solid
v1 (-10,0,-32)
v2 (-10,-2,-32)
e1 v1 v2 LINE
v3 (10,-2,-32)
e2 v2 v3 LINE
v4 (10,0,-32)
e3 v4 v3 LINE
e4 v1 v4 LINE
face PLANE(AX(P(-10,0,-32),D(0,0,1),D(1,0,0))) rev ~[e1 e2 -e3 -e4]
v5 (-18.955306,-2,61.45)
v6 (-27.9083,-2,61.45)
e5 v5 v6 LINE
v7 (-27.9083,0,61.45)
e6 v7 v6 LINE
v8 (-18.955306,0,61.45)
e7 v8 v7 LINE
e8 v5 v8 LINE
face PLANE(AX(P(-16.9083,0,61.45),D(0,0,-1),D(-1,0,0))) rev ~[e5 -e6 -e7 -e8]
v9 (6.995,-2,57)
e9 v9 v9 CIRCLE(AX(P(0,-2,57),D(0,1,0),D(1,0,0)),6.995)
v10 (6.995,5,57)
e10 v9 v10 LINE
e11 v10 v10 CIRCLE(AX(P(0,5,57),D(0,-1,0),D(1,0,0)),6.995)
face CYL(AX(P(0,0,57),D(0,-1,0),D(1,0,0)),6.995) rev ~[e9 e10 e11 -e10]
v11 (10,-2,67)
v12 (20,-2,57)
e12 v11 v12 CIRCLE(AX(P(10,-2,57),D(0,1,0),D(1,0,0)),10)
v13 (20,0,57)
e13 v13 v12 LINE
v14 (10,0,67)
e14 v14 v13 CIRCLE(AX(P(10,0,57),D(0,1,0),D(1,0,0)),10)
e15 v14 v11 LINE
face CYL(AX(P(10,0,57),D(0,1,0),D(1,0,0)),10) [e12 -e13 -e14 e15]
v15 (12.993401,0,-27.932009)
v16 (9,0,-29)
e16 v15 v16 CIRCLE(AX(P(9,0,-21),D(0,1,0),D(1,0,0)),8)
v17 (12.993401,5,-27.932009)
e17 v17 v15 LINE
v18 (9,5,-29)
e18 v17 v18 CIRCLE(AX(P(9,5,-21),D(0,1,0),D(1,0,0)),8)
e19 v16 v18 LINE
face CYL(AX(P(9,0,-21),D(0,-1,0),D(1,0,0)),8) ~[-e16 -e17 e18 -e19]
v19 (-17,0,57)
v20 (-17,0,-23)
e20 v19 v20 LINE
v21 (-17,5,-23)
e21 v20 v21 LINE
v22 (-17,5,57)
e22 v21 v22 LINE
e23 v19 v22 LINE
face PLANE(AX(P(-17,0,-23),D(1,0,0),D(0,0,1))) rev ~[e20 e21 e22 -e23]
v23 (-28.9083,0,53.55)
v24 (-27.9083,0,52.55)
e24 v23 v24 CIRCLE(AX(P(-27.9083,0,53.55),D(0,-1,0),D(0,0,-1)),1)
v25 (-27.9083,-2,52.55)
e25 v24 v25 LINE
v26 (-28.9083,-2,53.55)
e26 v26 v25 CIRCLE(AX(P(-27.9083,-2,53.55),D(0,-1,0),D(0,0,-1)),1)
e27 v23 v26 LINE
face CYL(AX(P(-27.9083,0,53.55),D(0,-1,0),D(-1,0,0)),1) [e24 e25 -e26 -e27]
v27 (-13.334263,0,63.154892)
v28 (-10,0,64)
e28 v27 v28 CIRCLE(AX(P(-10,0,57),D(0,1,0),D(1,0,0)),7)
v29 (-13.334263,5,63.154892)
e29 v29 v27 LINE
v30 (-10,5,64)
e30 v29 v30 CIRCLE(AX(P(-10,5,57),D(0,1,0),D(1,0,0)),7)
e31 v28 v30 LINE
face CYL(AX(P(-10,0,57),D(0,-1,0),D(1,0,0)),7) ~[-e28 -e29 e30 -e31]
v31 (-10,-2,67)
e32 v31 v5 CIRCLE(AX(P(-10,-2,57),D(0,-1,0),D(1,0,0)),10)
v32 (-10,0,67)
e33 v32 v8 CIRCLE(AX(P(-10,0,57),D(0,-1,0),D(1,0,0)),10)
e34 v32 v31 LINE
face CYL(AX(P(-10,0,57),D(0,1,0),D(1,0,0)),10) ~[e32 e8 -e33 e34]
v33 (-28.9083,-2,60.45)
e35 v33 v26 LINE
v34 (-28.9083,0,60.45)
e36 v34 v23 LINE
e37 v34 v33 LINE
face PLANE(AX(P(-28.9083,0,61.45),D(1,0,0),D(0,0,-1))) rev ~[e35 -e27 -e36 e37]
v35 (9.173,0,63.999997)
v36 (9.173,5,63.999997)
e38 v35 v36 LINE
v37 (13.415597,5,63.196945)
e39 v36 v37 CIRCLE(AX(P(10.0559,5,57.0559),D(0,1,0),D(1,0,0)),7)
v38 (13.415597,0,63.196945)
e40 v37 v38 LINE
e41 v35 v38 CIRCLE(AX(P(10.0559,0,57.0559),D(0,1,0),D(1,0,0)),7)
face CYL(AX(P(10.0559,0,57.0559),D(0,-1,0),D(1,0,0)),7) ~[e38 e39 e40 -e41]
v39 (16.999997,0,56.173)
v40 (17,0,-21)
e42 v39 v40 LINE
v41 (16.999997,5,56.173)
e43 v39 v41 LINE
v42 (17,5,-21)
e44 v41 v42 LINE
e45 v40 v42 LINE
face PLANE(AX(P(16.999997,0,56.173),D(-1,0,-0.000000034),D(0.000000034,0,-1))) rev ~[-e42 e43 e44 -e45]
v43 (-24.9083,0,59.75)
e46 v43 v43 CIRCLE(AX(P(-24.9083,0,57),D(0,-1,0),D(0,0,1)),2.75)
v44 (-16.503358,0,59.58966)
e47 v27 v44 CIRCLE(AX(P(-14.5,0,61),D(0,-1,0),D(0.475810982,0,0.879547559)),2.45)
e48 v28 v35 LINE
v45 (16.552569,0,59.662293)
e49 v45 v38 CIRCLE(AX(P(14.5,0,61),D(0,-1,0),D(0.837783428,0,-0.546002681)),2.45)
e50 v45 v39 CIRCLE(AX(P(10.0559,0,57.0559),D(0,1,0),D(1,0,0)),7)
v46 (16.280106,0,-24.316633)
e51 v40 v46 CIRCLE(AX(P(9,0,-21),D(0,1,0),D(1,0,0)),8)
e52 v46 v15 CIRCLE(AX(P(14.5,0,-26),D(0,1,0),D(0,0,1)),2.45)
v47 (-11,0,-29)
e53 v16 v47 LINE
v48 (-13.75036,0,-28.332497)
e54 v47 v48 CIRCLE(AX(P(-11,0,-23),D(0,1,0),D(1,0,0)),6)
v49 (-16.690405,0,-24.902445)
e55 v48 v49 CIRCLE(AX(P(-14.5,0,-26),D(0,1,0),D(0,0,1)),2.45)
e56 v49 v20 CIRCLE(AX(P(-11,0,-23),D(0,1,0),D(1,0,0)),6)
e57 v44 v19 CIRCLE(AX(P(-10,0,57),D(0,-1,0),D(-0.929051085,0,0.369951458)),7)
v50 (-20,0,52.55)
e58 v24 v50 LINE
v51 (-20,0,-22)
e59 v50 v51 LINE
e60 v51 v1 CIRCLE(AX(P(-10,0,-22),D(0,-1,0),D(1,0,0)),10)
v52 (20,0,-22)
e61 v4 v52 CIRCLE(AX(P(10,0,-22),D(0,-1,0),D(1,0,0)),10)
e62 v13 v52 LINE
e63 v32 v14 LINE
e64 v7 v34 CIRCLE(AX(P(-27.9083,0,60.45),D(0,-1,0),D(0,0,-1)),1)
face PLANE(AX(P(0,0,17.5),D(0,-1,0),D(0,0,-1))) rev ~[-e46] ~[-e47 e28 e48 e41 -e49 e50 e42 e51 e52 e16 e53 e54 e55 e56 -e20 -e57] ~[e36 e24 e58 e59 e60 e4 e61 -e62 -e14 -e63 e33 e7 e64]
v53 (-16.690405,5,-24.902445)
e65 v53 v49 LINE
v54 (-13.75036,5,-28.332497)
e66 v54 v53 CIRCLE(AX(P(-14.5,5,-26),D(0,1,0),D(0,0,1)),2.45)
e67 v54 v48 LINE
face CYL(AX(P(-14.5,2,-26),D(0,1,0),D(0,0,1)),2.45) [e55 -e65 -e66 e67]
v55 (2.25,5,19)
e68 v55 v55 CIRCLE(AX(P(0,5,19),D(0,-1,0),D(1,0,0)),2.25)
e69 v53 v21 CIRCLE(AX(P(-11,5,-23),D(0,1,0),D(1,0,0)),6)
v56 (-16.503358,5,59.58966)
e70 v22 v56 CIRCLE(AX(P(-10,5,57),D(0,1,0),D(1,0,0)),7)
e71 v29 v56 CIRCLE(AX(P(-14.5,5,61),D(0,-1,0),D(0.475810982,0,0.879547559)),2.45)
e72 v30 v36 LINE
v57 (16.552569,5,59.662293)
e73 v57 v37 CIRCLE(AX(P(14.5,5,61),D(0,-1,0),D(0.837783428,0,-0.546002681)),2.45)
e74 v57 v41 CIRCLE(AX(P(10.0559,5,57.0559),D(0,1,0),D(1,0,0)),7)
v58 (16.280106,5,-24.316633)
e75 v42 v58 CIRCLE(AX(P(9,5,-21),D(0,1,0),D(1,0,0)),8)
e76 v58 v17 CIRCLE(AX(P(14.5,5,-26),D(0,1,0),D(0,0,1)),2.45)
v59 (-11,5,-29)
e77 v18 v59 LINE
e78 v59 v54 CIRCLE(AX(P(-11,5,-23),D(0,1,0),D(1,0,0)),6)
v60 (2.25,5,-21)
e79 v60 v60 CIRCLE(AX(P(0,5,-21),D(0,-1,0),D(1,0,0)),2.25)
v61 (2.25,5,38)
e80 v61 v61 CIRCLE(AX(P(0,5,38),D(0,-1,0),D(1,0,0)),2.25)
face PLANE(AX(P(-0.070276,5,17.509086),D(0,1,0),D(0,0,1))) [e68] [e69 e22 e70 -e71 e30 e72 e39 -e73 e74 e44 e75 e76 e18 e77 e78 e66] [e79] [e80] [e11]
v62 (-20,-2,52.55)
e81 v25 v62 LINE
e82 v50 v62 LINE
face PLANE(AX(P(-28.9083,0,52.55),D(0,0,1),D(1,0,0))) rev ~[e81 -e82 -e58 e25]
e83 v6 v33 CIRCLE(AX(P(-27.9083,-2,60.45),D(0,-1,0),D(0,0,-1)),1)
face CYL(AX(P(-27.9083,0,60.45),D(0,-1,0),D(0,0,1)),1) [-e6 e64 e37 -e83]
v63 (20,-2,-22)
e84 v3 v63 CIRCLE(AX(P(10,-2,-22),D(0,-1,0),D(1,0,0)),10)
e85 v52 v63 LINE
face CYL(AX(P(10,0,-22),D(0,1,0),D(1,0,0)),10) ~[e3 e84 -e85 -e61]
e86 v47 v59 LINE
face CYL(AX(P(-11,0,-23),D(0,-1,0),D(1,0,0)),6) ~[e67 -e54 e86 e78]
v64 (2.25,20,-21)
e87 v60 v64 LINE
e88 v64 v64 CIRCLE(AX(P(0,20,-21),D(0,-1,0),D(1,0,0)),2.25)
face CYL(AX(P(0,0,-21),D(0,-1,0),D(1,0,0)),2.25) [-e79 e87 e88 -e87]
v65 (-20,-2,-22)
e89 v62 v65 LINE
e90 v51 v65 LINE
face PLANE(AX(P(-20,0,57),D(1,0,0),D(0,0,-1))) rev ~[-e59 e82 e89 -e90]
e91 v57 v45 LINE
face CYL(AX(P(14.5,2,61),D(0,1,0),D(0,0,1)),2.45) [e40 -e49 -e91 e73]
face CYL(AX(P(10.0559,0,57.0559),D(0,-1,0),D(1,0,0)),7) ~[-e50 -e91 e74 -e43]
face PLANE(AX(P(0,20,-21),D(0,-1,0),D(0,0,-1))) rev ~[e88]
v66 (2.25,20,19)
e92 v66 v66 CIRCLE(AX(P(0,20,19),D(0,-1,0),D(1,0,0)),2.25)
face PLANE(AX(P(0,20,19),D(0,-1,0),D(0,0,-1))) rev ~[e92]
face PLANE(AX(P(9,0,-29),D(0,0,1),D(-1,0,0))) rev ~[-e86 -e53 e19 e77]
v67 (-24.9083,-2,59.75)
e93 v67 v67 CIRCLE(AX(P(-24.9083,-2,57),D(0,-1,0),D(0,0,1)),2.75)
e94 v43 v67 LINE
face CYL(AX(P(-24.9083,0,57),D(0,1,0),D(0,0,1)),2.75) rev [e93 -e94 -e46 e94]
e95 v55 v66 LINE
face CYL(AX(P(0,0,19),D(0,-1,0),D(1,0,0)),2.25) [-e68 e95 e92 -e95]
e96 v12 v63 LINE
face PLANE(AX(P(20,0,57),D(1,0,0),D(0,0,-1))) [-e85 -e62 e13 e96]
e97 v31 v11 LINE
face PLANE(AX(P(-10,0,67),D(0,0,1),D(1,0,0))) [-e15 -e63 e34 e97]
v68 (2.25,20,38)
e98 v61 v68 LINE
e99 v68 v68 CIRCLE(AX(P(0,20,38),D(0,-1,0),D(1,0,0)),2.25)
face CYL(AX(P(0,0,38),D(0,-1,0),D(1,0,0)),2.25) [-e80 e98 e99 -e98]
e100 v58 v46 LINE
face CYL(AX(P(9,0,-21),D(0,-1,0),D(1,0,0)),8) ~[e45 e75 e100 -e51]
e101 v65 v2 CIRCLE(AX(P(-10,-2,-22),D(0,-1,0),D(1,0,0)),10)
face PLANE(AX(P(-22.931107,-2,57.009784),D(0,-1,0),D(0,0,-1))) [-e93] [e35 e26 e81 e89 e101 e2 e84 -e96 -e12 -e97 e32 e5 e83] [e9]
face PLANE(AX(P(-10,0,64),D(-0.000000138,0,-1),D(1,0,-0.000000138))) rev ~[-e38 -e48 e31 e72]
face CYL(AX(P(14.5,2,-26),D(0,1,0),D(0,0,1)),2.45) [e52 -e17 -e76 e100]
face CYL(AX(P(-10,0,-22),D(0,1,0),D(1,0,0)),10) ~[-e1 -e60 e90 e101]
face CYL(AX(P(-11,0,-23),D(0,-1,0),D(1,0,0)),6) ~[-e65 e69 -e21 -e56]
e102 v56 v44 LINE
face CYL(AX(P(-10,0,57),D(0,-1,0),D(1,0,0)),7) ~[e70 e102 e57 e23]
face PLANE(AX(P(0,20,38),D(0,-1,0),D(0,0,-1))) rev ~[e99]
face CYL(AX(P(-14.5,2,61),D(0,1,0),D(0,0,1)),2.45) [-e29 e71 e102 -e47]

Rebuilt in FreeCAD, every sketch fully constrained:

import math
import FreeCAD as App
import Part
import Sketcher

V = App.Vector
Q = App.Units.Quantity


def edges_at(feature, points):
    """Names of the edges that pass closest to the given points."""
    edges = feature.Shape.Edges
    near = lambda p: min(range(len(edges)), key=lambda i: edges[i].distToShape(Part.Vertex(*p))[0])
    return sorted({f"Edge{near(p) + 1}" for p in points})


def add_polygon(sketch, points):
    """Adds a closed chain of lines whose ends are joined by coincident constraints."""
    first, n = sketch.GeometryCount, len(points)
    for a, b in zip(points, points[1:] + points[:1]):
        sketch.addGeometry(Part.LineSegment(App.Vector(*a, 0), App.Vector(*b, 0)), False)
    for i in range(n):
        sketch.addConstraint(Sketcher.Constraint("Coincident", first + i, 2, first + (i + 1) % n, 1))

doc = App.newDocument("Part")
body = doc.addObject("PartDesign::Body", "Body")

sketch1 = body.newObject("Sketcher::SketchObject", "Sketch")
sketch1.AttachmentSupport = (doc.getObject("XZ_Plane"), [""])
sketch1.MapMode = "FlatFace"
sketch1.addGeometry([
    Part.ArcOfCircle(Part.Circle(V(-10, 57, 0), V(0, 0, 1), 10), math.radians(90), math.radians(180)),
    Part.LineSegment(V(-20, 57, 0), V(-20, -22, 0)),
    Part.ArcOfCircle(Part.Circle(V(-10, -22, 0), V(0, 0, 1), 10), math.radians(180), math.radians(270)),
    Part.LineSegment(V(-10, -32, 0), V(10, -32, 0)),
    Part.ArcOfCircle(Part.Circle(V(10, -22, 0), V(0, 0, 1), 10), math.radians(-90), math.radians(0)),
    Part.LineSegment(V(20, -22, 0), V(20, 57, 0)),
    Part.ArcOfCircle(Part.Circle(V(10, 57, 0), V(0, 0, 1), 10), math.radians(0), math.radians(90)),
    Part.LineSegment(V(10, 67, 0), V(-10, 67, 0)),
], False)
sketch1.addConstraint([
    Sketcher.Constraint("Tangent", 0, 2, 1, 1),
    Sketcher.Constraint("Tangent", 1, 2, 2, 1),
    Sketcher.Constraint("Tangent", 2, 2, 3, 1),
    Sketcher.Constraint("Tangent", 3, 2, 4, 1),
    Sketcher.Constraint("Tangent", 4, 2, 5, 1),
    Sketcher.Constraint("Tangent", 5, 2, 6, 1),
    Sketcher.Constraint("Tangent", 6, 2, 7, 1),
    Sketcher.Constraint("Tangent", 7, 2, 0, 1),
    Sketcher.Constraint("Vertical", 1),
    Sketcher.Constraint("Horizontal", 3),
    Sketcher.Constraint("Vertical", 5),
    Sketcher.Constraint("Horizontal", 7),
    Sketcher.Constraint("Equal", 0, 2),
    Sketcher.Constraint("Equal", 2, 4),
    Sketcher.Constraint("Equal", 4, 6),
    Sketcher.Constraint("Radius", 0, Q("10 mm")),
    Sketcher.Constraint("DistanceX", 3, 1, 3, 2, Q("20 mm")),
    Sketcher.Constraint("DistanceY", 1, 2, 1, 1, Q("79 mm")),
    Sketcher.Constraint("DistanceX", 0, 3, -1, 1, Q("10 mm")),
    Sketcher.Constraint("DistanceY", -1, 1, 0, 3, Q("57 mm")),
])
pad1 = body.newObject("PartDesign::Pad", "Pad")
pad1.Profile = sketch1
pad1.Length = 2

sketch2 = body.newObject("Sketcher::SketchObject", "Sketch001")
sketch2.AttachmentSupport = (doc.getObject("XZ_Plane"), [""])
sketch2.MapMode = "FlatFace"
sketch2.addGeometry([
    Part.LineSegment(V(17, -21, 0), V(17, 56.173, 0)),
    Part.ArcOfCircle(Part.Circle(V(10.0559, 57.0559, 0), V(0, 0, 1), 7.000003), math.radians(-7.245931), math.radians(97.245931)),
    Part.LineSegment(V(9.173, 64, 0), V(-10, 64, 0)),
    Part.ArcOfCircle(Part.Circle(V(-10, 57, 0), V(0, 0, 1), 7), math.radians(90), math.radians(180)),
    Part.LineSegment(V(-17, 57, 0), V(-17, -23, 0)),
    Part.ArcOfCircle(Part.Circle(V(-11, -23, 0), V(0, 0, 1), 6), math.radians(180), math.radians(270)),
    Part.LineSegment(V(-11, -29, 0), V(9, -29, 0)),
    Part.ArcOfCircle(Part.Circle(V(9, -21, 0), V(0, 0, 1), 8), math.radians(-90), math.radians(0)),
], False)
sketch2.addConstraint([
    Sketcher.Constraint("Coincident", 0, 2, 1, 1),
    Sketcher.Constraint("Coincident", 1, 2, 2, 1),
    Sketcher.Constraint("Tangent", 2, 2, 3, 1),
    Sketcher.Constraint("Tangent", 3, 2, 4, 1),
    Sketcher.Constraint("Tangent", 4, 2, 5, 1),
    Sketcher.Constraint("Tangent", 5, 2, 6, 1),
    Sketcher.Constraint("Tangent", 6, 2, 7, 1),
    Sketcher.Constraint("Tangent", 7, 2, 0, 1),
    Sketcher.Constraint("Vertical", 0),
    Sketcher.Constraint("Horizontal", 2),
    Sketcher.Constraint("Vertical", 4),
    Sketcher.Constraint("Horizontal", 6),
    Sketcher.Constraint("Equal", 1, 3),
    Sketcher.Constraint("Radius", 1, Q("7 mm")),
    Sketcher.Constraint("Radius", 5, Q("6 mm")),
    Sketcher.Constraint("Radius", 7, Q("8 mm")),
    Sketcher.Constraint("DistanceX", 6, 1, 6, 2, Q("20 mm")),
    Sketcher.Constraint("DistanceY", 4, 2, 4, 1, Q("80 mm")),
    Sketcher.Constraint("DistanceX", 3, 3, -1, 1, Q("10 mm")),
    Sketcher.Constraint("DistanceY", -1, 1, 3, 3, Q("57 mm")),
    Sketcher.Constraint("DistanceX", 2, 2, 2, 1, Q("19.173 mm")),
    Sketcher.Constraint("DistanceY", 0, 1, 0, 2, Q("77.173 mm")),
])
pad2 = body.newObject("PartDesign::Pad", "Pad001")
pad2.Profile = sketch2
pad2.Length = 5
pad2.Reversed = True

sketch3 = body.newObject("Sketcher::SketchObject", "Sketch002")
sketch3.AttachmentSupport = (doc.getObject("XZ_Plane"), [""])
sketch3.MapMode = "FlatFace"
sketch3.addGeometry([
    Part.Circle(V(0, 19, 0), V(0, 0, 1), 2.25),
    Part.Circle(V(0, 38, 0), V(0, 0, 1), 2.25),
    Part.Circle(V(0, -21, 0), V(0, 0, 1), 2.25),
], False)
sketch3.addConstraint([
    Sketcher.Constraint("Equal", 0, 1),
    Sketcher.Constraint("Equal", 1, 2),
    Sketcher.Constraint("PointOnObject", 0, 3, -2),
    Sketcher.Constraint("PointOnObject", 1, 3, -2),
    Sketcher.Constraint("PointOnObject", 2, 3, -2),
    Sketcher.Constraint("Diameter", 0, Q("4.5 mm")),
    Sketcher.Constraint("DistanceY", -1, 1, 0, 3, Q("19 mm")),
    Sketcher.Constraint("DistanceY", -1, 1, 1, 3, Q("38 mm")),
    Sketcher.Constraint("DistanceY", 2, 3, -1, 1, Q("21 mm")),
])
pad3 = body.newObject("PartDesign::Pad", "Pad002")
pad3.Profile = sketch3
pad3.Length = 20
pad3.Reversed = True

sketch4 = body.newObject("Sketcher::SketchObject", "Sketch003")
sketch4.AttachmentSupport = (doc.getObject("XZ_Plane"), [""])
sketch4.MapMode = "FlatFace"
sketch4.AttachmentOffset = App.Placement(V(0, 0, -2), App.Rotation())
sketch4.addGeometry([
    Part.Circle(V(14.5, -26, 0), V(0, 0, 1), 2.45),
    Part.Circle(V(-14.5, -26, 0), V(0, 0, 1), 2.45),
    Part.Circle(V(-14.5, 61, 0), V(0, 0, 1), 2.45),
    Part.Circle(V(14.5, 61, 0), V(0, 0, 1), 2.45),
], False)
sketch4.addConstraint([
    Sketcher.Constraint("Equal", 0, 1),
    Sketcher.Constraint("Equal", 1, 2),
    Sketcher.Constraint("Equal", 2, 3),
    Sketcher.Constraint("Symmetric", 0, 3, 1, 3, -2),
    Sketcher.Constraint("Symmetric", 2, 3, 3, 3, -2),
    Sketcher.Constraint("Vertical", 1, 3, 2, 3),
    Sketcher.Constraint("Diameter", 0, Q("4.9 mm")),
    Sketcher.Constraint("DistanceY", 0, 3, -1, 1, Q("26 mm")),
    Sketcher.Constraint("DistanceY", -1, 1, 2, 3, Q("61 mm")),
    Sketcher.Constraint("DistanceX", 1, 3, 0, 3, Q("29 mm")),
])
pad4 = body.newObject("PartDesign::Pad", "Pad003")
pad4.Profile = sketch4
pad4.Type = "TwoLengths"
pad4.Length = 3
pad4.Length2 = 4
pad4.Reversed = True

sketch5 = body.newObject("Sketcher::SketchObject", "Sketch004")
sketch5.AttachmentSupport = (doc.getObject("XZ_Plane"), [""])
sketch5.MapMode = "FlatFace"
add_polygon(sketch5, [(-16.9083, 61.45), (-28.9083, 61.45), (-28.9083, 52.55), (-17, 52.55)])
sketch5.addGeometry(Part.Circle(V(-24.9083, 57, 0), V(0, 0, 1), 2.75), False)
sketch5.addConstraint([
    Sketcher.Constraint("Horizontal", 0),
    Sketcher.Constraint("Vertical", 1),
    Sketcher.Constraint("Horizontal", 2),
    Sketcher.Constraint("Diameter", 4, Q("5.5 mm")),
    Sketcher.Constraint("DistanceX", 0, 2, 0, 1, Q("12 mm")),
    Sketcher.Constraint("DistanceY", 1, 2, 1, 1, Q("8.9 mm")),
    Sketcher.Constraint("DistanceY", -1, 1, 4, 3, Q("57 mm")),
    Sketcher.Constraint("DistanceX", 2, 2, -1, 1, Q("17 mm")),
    Sketcher.Constraint("DistanceX", 0, 2, 4, 3, Q("4 mm")),
    Sketcher.Constraint("Angle", 3, Q("89.4097 deg")),
    Sketcher.Constraint("DistanceY", -1, 1, 0, 2, Q("61.45 mm")),
])
pad5 = body.newObject("PartDesign::Pad", "Pad004")
pad5.Profile = sketch5
pad5.Length = 2

sketch6 = body.newObject("Sketcher::SketchObject", "Sketch005")
sketch6.AttachmentSupport = (doc.getObject("XZ_Plane"), [""])
sketch6.MapMode = "FlatFace"
sketch6.addGeometry(Part.Circle(V(0, 57, 0), V(0, 0, 1), 6.995), False)
sketch6.addConstraint([
    Sketcher.Constraint("PointOnObject", 0, 3, -2),
    Sketcher.Constraint("Diameter", 0, Q("13.99 mm")),
    Sketcher.Constraint("DistanceY", -1, 1, 0, 3, Q("57 mm")),
])
pocket1 = body.newObject("PartDesign::Pocket", "Pocket")
pocket1.Profile = sketch6
pocket1.Length = 10
pocket1.Midplane = True
doc.recompute()

fillet = body.newObject("PartDesign::Fillet", "Fillet")
fillet.Base = (pocket1, edges_at(pocket1, [(-28.908, -1, 61.45), (-28.908, -1, 52.55)]))
fillet.Radius = 1

doc.recompute()
